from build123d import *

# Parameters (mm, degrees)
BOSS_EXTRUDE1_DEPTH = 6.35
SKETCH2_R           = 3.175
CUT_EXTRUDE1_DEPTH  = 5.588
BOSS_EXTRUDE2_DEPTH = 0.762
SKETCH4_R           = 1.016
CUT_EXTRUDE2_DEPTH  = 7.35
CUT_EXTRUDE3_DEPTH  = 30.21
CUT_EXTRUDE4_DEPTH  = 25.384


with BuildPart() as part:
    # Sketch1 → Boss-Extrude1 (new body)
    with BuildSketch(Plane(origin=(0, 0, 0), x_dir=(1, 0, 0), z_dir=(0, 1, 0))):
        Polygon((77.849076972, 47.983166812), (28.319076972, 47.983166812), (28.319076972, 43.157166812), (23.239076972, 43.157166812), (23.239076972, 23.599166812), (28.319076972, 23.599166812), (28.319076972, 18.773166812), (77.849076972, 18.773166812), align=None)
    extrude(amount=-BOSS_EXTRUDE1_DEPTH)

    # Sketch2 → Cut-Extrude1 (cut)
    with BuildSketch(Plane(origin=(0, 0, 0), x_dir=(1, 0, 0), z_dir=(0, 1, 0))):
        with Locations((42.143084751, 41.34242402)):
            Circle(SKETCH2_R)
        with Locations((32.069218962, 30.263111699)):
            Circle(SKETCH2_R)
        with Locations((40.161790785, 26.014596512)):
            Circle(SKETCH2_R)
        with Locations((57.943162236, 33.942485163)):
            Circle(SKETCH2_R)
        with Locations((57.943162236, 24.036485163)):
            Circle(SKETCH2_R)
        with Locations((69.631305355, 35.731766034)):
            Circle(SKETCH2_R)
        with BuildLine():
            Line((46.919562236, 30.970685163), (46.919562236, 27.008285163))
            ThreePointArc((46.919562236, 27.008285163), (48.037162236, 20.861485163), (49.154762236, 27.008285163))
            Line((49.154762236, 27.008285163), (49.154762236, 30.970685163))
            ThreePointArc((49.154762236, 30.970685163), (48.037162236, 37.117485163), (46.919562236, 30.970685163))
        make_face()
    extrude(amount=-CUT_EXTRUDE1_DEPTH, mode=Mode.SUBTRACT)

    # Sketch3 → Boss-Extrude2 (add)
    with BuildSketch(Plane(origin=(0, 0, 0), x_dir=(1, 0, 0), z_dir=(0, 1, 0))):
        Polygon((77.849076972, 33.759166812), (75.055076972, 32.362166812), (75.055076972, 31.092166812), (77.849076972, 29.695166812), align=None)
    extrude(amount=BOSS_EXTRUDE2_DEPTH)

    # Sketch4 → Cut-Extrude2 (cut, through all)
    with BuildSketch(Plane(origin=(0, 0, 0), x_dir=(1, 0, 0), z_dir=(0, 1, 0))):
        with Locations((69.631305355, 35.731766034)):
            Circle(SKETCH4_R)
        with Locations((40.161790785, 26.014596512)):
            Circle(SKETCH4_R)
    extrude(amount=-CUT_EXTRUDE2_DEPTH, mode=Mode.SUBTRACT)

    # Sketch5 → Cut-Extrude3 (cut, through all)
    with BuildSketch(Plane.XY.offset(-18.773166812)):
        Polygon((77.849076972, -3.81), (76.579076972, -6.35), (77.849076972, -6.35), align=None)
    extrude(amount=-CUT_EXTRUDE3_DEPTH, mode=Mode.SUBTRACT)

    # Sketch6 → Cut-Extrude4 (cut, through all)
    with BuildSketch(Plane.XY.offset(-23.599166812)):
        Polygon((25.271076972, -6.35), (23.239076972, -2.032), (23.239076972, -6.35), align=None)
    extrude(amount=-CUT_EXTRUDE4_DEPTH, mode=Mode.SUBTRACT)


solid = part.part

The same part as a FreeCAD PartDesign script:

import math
import FreeCAD as App
import Part
import Sketcher
from FreeCAD import Vector
Q = App.Units.Quantity


def add_polygon(sketch, points):
    """Adds a closed chain of lines whose ends are joined by coincident constraints."""
    first, n = sketch.GeometryCount, len(points)
    for a, b in zip(points, points[1:] + points[:1]):
        sketch.addGeometry(Part.LineSegment(App.Vector(*a, 0), App.Vector(*b, 0)), False)
    for i in range(n):
        sketch.addConstraint(Sketcher.Constraint("Coincident", first + i, 2, first + (i + 1) % n, 1))

doc = App.newDocument("Part")
body = doc.addObject("PartDesign::Body", "Body")

sketch1 = body.newObject("Sketcher::SketchObject", "Sketch")
sketch1.AttachmentSupport = (doc.getObject("XZ_Plane"), [""])
sketch1.MapMode = "FlatFace"
add_polygon(sketch1, [(77.849077, -47.983167), (28.319077, -47.983167), (28.319077, -43.157167), (23.239077, -43.157167), (23.239077, -23.599167), (28.319077, -23.599167), (28.319077, -18.773167), (77.849077, -18.773167)])
sketch1.addConstraint(Sketcher.Constraint("Horizontal", 0))
sketch1.addConstraint(Sketcher.Constraint("Vertical", 1))
sketch1.addConstraint(Sketcher.Constraint("Horizontal", 2))
sketch1.addConstraint(Sketcher.Constraint("Vertical", 3))
sketch1.addConstraint(Sketcher.Constraint("Horizontal", 4))
sketch1.addConstraint(Sketcher.Constraint("Vertical", 5))
sketch1.addConstraint(Sketcher.Constraint("Horizontal", 6))
sketch1.addConstraint(Sketcher.Constraint("Vertical", 7))
sketch1.addConstraint(Sketcher.Constraint("Vertical", 1, 2, 4, 2))
sketch1.addConstraint(Sketcher.Constraint("Equal", 1, 5))
sketch1.addConstraint(Sketcher.Constraint("DistanceX", 2, 2, 2, 1, Q("0.2 in")))
sketch1.addConstraint(Sketcher.Constraint("DistanceX", 0, 2, 0, 1, Q("1.95 in")))
sketch1.addConstraint(Sketcher.Constraint("DistanceY", 1, 1, 1, 2, Q("0.19 in")))
sketch1.addConstraint(Sketcher.Constraint("DistanceY", 3, 1, 3, 2, Q("0.77 in")))
sketch1.addConstraint(Sketcher.Constraint("DistanceX", -1, 1, 0, 2, 28.319077))
sketch1.addConstraint(Sketcher.Constraint("DistanceY", 0, 2, -1, 1, 47.983167))
pad1 = body.newObject("PartDesign::Pad", "Pad")
pad1.Profile = sketch1
pad1.Length = Q("0.25 in")

sketch2 = body.newObject("Sketcher::SketchObject", "Sketch001")
sketch2.AttachmentSupport = (doc.getObject("XZ_Plane"), [""])
sketch2.MapMode = "FlatFace"
sketch2.addGeometry(Part.Circle(Vector(42.143085, -41.342424, 0), Vector(0, 0, 1), 3.175), False)
sketch2.addGeometry(Part.Circle(Vector(32.069219, -30.263112, 0), Vector(0, 0, 1), 3.175), False)
sketch2.addGeometry(Part.Circle(Vector(40.161791, -26.014597, 0), Vector(0, 0, 1), 3.175), False)
sketch2.addGeometry(Part.Circle(Vector(57.943162, -33.942485, 0), Vector(0, 0, 1), 3.175), False)
sketch2.addGeometry(Part.Circle(Vector(57.943162, -24.036485, 0), Vector(0, 0, 1), 3.175), False)
sketch2.addGeometry(Part.Circle(Vector(69.631305, -35.731766, 0), Vector(0, 0, 1), 3.175), False)
sketch2.addGeometry(Part.LineSegment(Vector(46.919562, -30.970685, 0), Vector(46.919562, -27.008285, 0)), False)
sketch2.addGeometry(Part.ArcOfCircle(Part.Circle(Vector(48.037162, -24.036485, 0), Vector(0, 0, 1), 3.175), math.radians(-69.390307), math.radians(249.390307)), False)
sketch2.addGeometry(Part.LineSegment(Vector(49.154762, -27.008285, 0), Vector(49.154762, -30.970685, 0)), False)
sketch2.addGeometry(Part.ArcOfCircle(Part.Circle(Vector(48.037162, -33.942485, 0), Vector(0, 0, 1), 3.175), math.radians(110.609693), math.radians(429.390307)), False)
sketch2.addConstraint(Sketcher.Constraint("Coincident", 6, 2, 7, 2))
sketch2.addConstraint(Sketcher.Constraint("Coincident", 7, 1, 8, 1))
sketch2.addConstraint(Sketcher.Constraint("Coincident", 8, 2, 9, 2))
sketch2.addConstraint(Sketcher.Constraint("Coincident", 9, 1, 6, 1))
sketch2.addConstraint(Sketcher.Constraint("Vertical", 6))
sketch2.addConstraint(Sketcher.Constraint("Vertical", 8))
sketch2.addConstraint(Sketcher.Constraint("Equal", 0, 1))
sketch2.addConstraint(Sketcher.Constraint("Equal", 1, 2))
sketch2.addConstraint(Sketcher.Constraint("Equal", 2, 3))
sketch2.addConstraint(Sketcher.Constraint("Equal", 3, 4))
sketch2.addConstraint(Sketcher.Constraint("Equal", 4, 5))
sketch2.addConstraint(Sketcher.Constraint("Equal", 5, 7))
sketch2.addConstraint(Sketcher.Constraint("Equal", 7, 9))
sketch2.addConstraint(Sketcher.Constraint("Horizontal", 4, 3, 7, 3))
sketch2.addConstraint(Sketcher.Constraint("Horizontal", 3, 3, 9, 3))
sketch2.addConstraint(Sketcher.Constraint("Horizontal", 6, 2, 7, 1))
sketch2.addConstraint(Sketcher.Constraint("Horizontal", 8, 2, 9, 1))
sketch2.addConstraint(Sketcher.Constraint("Vertical", 3, 3, 4, 3))
sketch2.addConstraint(Sketcher.Constraint("Diameter", 0, Q("0.25 in")))
sketch2.addConstraint(Sketcher.Constraint("DistanceY", 6, 1, 6, 2, Q("0.156 in")))
sketch2.addConstraint(Sketcher.Constraint("DistanceY", 3, 3, 4, 3, Q("0.39 in")))
sketch2.addConstraint(Sketcher.Constraint("DistanceX", 7, 3, 4, 3, Q("0.39 in")))
sketch2.addConstraint(Sketcher.Constraint("DistanceX", -1, 1, 1, 3, 32.069219))
sketch2.addConstraint(Sketcher.Constraint("DistanceY", 1, 3, -1, 1, 30.263112))
sketch2.addConstraint(Sketcher.Constraint("DistanceX", -1, 1, 2, 3, 40.161791))
sketch2.addConstraint(Sketcher.Constraint("DistanceY", 0, 3, 3, 3, 7.399939))
sketch2.addConstraint(Sketcher.Constraint("DistanceX", 2, 3, 3, 3, 17.781371))
sketch2.addConstraint(Sketcher.Constraint("DistanceY", 3, 3, 2, 3, 7.927889))
sketch2.addConstraint(Sketcher.Constraint("DistanceY", 5, 3, 3, 3, 1.789281))
sketch2.addConstraint(Sketcher.Constraint("DistanceX", 0, 3, 5, 3, 27.488221))
sketch2.addConstraint(Sketcher.Constraint("DistanceX", -1, 1, 0, 3, 42.143085))
sketch2.addConstraint(Sketcher.Constraint("DistanceY", 0, 3, -1, 1, 41.342424))
pocket1 = body.newObject("PartDesign::Pocket", "Pocket")
pocket1.Profile = sketch2
pocket1.Length = Q("0.22 in")
pocket1.Reversed = True

sketch3 = body.newObject("Sketcher::SketchObject", "Sketch002")
sketch3.AttachmentSupport = (doc.getObject("XZ_Plane"), [""])
sketch3.MapMode = "FlatFace"
add_polygon(sketch3, [(77.849077, -33.759167), (75.055077, -32.362167), (75.055077, -31.092167), (77.849077, -29.695167)])
sketch3.addConstraint(Sketcher.Constraint("Vertical", 1))
sketch3.addConstraint(Sketcher.Constraint("Vertical", 3))
sketch3.addConstraint(Sketcher.Constraint("Equal", 0, 2))
sketch3.addConstraint(Sketcher.Constraint("DistanceY", 1, 1, 1, 2, Q("0.05 in")))
sketch3.addConstraint(Sketcher.Constraint("DistanceY", 3, 2, 3, 1, Q("0.16 in")))
sketch3.addConstraint(Sketcher.Constraint("DistanceX", 1, 2, 2, 2, Q("0.11 in")))
sketch3.addConstraint(Sketcher.Constraint("DistanceX", -1, 1, 0, 2, 75.055077))
sketch3.addConstraint(Sketcher.Constraint("DistanceY", 0, 2, -1, 1, 32.362167))
pad2 = body.newObject("PartDesign::Pad", "Pad001")
pad2.Profile = sketch3
pad2.Length = Q("0.03 in")
pad2.Reversed = True

sketch4 = body.newObject("Sketcher::SketchObject", "Sketch003")
sketch4.AttachmentSupport = (doc.getObject("XZ_Plane"), [""])
sketch4.MapMode = "FlatFace"
sketch4.addGeometry(Part.Circle(Vector(69.631305, -35.731766, 0), Vector(0, 0, 1), 1.016), False)
sketch4.addGeometry(Part.Circle(Vector(40.161791, -26.014597, 0), Vector(0, 0, 1), 1.016), False)
sketch4.addConstraint(Sketcher.Constraint("Equal", 0, 1))
sketch4.addConstraint(Sketcher.Constraint("Diameter", 0, Q("0.08 in")))
sketch4.addConstraint(Sketcher.Constraint("DistanceX", -1, 1, 1, 3, 40.161791))
sketch4.addConstraint(Sketcher.Constraint("DistanceY", 0, 3, 1, 3, 9.71717))
sketch4.addConstraint(Sketcher.Constraint("DistanceX", -1, 1, 0, 3, 69.631305))
sketch4.addConstraint(Sketcher.Constraint("DistanceY", 0, 3, -1, 1, 35.731766))
pocket2 = body.newObject("PartDesign::Pocket", "Pocket001")
pocket2.Profile = sketch4
pocket2.Type = "ThroughAll"
pocket2.Reversed = True

sketch5 = body.newObject("Sketcher::SketchObject", "Sketch004")
sketch5.AttachmentSupport = (doc.getObject("XY_Plane"), [""])
sketch5.MapMode = "FlatFace"
sketch5.AttachmentOffset = App.Placement(Vector(0, 0, -18.773167), App.Rotation())
add_polygon(sketch5, [(77.849077, -3.81), (76.579077, -6.35), (77.849077, -6.35)])
sketch5.addConstraint(Sketcher.Constraint("Horizontal", 1))
sketch5.addConstraint(Sketcher.Constraint("Vertical", 2))
sketch5.addConstraint(Sketcher.Constraint("DistanceY", 2, 1, 2, 2, Q("0.1 in")))
sketch5.addConstraint(Sketcher.Constraint("DistanceX", 1, 1, 1, 2, Q("0.05 in")))
sketch5.addConstraint(Sketcher.Constraint("DistanceY", 0, 2, -1, 1, Q("0.25 in")))
sketch5.addConstraint(Sketcher.Constraint("DistanceX", -1, 1, 0, 2, 76.579077))
pocket3 = body.newObject("PartDesign::Pocket", "Pocket002")
pocket3.Profile = sketch5
pocket3.Type = "ThroughAll"

sketch6 = body.newObject("Sketcher::SketchObject", "Sketch005")
sketch6.AttachmentSupport = (doc.getObject("XY_Plane"), [""])
sketch6.MapMode = "FlatFace"
sketch6.AttachmentOffset = App.Placement(Vector(0, 0, -23.599167), App.Rotation())
add_polygon(sketch6, [(25.271077, -6.35), (23.239077, -2.032), (23.239077, -6.35)])
sketch6.addConstraint(Sketcher.Constraint("Vertical", 1))
sketch6.addConstraint(Sketcher.Constraint("Horizontal", 2))
sketch6.addConstraint(Sketcher.Constraint("DistanceX", 2, 1, 2, 2, Q("0.08 in")))
sketch6.addConstraint(Sketcher.Constraint("DistanceY", 1, 2, 1, 1, Q("0.17 in")))
sketch6.addConstraint(Sketcher.Constraint("DistanceY", 0, 2, -1, 1, Q("0.08 in")))
sketch6.addConstraint(Sketcher.Constraint("DistanceX", -1, 1, 0, 2, 23.239077))
pocket4 = body.newObject("PartDesign::Pocket", "Pocket003")
pocket4.Profile = sketch6
pocket4.Type = "ThroughAll"

doc.recompute()
